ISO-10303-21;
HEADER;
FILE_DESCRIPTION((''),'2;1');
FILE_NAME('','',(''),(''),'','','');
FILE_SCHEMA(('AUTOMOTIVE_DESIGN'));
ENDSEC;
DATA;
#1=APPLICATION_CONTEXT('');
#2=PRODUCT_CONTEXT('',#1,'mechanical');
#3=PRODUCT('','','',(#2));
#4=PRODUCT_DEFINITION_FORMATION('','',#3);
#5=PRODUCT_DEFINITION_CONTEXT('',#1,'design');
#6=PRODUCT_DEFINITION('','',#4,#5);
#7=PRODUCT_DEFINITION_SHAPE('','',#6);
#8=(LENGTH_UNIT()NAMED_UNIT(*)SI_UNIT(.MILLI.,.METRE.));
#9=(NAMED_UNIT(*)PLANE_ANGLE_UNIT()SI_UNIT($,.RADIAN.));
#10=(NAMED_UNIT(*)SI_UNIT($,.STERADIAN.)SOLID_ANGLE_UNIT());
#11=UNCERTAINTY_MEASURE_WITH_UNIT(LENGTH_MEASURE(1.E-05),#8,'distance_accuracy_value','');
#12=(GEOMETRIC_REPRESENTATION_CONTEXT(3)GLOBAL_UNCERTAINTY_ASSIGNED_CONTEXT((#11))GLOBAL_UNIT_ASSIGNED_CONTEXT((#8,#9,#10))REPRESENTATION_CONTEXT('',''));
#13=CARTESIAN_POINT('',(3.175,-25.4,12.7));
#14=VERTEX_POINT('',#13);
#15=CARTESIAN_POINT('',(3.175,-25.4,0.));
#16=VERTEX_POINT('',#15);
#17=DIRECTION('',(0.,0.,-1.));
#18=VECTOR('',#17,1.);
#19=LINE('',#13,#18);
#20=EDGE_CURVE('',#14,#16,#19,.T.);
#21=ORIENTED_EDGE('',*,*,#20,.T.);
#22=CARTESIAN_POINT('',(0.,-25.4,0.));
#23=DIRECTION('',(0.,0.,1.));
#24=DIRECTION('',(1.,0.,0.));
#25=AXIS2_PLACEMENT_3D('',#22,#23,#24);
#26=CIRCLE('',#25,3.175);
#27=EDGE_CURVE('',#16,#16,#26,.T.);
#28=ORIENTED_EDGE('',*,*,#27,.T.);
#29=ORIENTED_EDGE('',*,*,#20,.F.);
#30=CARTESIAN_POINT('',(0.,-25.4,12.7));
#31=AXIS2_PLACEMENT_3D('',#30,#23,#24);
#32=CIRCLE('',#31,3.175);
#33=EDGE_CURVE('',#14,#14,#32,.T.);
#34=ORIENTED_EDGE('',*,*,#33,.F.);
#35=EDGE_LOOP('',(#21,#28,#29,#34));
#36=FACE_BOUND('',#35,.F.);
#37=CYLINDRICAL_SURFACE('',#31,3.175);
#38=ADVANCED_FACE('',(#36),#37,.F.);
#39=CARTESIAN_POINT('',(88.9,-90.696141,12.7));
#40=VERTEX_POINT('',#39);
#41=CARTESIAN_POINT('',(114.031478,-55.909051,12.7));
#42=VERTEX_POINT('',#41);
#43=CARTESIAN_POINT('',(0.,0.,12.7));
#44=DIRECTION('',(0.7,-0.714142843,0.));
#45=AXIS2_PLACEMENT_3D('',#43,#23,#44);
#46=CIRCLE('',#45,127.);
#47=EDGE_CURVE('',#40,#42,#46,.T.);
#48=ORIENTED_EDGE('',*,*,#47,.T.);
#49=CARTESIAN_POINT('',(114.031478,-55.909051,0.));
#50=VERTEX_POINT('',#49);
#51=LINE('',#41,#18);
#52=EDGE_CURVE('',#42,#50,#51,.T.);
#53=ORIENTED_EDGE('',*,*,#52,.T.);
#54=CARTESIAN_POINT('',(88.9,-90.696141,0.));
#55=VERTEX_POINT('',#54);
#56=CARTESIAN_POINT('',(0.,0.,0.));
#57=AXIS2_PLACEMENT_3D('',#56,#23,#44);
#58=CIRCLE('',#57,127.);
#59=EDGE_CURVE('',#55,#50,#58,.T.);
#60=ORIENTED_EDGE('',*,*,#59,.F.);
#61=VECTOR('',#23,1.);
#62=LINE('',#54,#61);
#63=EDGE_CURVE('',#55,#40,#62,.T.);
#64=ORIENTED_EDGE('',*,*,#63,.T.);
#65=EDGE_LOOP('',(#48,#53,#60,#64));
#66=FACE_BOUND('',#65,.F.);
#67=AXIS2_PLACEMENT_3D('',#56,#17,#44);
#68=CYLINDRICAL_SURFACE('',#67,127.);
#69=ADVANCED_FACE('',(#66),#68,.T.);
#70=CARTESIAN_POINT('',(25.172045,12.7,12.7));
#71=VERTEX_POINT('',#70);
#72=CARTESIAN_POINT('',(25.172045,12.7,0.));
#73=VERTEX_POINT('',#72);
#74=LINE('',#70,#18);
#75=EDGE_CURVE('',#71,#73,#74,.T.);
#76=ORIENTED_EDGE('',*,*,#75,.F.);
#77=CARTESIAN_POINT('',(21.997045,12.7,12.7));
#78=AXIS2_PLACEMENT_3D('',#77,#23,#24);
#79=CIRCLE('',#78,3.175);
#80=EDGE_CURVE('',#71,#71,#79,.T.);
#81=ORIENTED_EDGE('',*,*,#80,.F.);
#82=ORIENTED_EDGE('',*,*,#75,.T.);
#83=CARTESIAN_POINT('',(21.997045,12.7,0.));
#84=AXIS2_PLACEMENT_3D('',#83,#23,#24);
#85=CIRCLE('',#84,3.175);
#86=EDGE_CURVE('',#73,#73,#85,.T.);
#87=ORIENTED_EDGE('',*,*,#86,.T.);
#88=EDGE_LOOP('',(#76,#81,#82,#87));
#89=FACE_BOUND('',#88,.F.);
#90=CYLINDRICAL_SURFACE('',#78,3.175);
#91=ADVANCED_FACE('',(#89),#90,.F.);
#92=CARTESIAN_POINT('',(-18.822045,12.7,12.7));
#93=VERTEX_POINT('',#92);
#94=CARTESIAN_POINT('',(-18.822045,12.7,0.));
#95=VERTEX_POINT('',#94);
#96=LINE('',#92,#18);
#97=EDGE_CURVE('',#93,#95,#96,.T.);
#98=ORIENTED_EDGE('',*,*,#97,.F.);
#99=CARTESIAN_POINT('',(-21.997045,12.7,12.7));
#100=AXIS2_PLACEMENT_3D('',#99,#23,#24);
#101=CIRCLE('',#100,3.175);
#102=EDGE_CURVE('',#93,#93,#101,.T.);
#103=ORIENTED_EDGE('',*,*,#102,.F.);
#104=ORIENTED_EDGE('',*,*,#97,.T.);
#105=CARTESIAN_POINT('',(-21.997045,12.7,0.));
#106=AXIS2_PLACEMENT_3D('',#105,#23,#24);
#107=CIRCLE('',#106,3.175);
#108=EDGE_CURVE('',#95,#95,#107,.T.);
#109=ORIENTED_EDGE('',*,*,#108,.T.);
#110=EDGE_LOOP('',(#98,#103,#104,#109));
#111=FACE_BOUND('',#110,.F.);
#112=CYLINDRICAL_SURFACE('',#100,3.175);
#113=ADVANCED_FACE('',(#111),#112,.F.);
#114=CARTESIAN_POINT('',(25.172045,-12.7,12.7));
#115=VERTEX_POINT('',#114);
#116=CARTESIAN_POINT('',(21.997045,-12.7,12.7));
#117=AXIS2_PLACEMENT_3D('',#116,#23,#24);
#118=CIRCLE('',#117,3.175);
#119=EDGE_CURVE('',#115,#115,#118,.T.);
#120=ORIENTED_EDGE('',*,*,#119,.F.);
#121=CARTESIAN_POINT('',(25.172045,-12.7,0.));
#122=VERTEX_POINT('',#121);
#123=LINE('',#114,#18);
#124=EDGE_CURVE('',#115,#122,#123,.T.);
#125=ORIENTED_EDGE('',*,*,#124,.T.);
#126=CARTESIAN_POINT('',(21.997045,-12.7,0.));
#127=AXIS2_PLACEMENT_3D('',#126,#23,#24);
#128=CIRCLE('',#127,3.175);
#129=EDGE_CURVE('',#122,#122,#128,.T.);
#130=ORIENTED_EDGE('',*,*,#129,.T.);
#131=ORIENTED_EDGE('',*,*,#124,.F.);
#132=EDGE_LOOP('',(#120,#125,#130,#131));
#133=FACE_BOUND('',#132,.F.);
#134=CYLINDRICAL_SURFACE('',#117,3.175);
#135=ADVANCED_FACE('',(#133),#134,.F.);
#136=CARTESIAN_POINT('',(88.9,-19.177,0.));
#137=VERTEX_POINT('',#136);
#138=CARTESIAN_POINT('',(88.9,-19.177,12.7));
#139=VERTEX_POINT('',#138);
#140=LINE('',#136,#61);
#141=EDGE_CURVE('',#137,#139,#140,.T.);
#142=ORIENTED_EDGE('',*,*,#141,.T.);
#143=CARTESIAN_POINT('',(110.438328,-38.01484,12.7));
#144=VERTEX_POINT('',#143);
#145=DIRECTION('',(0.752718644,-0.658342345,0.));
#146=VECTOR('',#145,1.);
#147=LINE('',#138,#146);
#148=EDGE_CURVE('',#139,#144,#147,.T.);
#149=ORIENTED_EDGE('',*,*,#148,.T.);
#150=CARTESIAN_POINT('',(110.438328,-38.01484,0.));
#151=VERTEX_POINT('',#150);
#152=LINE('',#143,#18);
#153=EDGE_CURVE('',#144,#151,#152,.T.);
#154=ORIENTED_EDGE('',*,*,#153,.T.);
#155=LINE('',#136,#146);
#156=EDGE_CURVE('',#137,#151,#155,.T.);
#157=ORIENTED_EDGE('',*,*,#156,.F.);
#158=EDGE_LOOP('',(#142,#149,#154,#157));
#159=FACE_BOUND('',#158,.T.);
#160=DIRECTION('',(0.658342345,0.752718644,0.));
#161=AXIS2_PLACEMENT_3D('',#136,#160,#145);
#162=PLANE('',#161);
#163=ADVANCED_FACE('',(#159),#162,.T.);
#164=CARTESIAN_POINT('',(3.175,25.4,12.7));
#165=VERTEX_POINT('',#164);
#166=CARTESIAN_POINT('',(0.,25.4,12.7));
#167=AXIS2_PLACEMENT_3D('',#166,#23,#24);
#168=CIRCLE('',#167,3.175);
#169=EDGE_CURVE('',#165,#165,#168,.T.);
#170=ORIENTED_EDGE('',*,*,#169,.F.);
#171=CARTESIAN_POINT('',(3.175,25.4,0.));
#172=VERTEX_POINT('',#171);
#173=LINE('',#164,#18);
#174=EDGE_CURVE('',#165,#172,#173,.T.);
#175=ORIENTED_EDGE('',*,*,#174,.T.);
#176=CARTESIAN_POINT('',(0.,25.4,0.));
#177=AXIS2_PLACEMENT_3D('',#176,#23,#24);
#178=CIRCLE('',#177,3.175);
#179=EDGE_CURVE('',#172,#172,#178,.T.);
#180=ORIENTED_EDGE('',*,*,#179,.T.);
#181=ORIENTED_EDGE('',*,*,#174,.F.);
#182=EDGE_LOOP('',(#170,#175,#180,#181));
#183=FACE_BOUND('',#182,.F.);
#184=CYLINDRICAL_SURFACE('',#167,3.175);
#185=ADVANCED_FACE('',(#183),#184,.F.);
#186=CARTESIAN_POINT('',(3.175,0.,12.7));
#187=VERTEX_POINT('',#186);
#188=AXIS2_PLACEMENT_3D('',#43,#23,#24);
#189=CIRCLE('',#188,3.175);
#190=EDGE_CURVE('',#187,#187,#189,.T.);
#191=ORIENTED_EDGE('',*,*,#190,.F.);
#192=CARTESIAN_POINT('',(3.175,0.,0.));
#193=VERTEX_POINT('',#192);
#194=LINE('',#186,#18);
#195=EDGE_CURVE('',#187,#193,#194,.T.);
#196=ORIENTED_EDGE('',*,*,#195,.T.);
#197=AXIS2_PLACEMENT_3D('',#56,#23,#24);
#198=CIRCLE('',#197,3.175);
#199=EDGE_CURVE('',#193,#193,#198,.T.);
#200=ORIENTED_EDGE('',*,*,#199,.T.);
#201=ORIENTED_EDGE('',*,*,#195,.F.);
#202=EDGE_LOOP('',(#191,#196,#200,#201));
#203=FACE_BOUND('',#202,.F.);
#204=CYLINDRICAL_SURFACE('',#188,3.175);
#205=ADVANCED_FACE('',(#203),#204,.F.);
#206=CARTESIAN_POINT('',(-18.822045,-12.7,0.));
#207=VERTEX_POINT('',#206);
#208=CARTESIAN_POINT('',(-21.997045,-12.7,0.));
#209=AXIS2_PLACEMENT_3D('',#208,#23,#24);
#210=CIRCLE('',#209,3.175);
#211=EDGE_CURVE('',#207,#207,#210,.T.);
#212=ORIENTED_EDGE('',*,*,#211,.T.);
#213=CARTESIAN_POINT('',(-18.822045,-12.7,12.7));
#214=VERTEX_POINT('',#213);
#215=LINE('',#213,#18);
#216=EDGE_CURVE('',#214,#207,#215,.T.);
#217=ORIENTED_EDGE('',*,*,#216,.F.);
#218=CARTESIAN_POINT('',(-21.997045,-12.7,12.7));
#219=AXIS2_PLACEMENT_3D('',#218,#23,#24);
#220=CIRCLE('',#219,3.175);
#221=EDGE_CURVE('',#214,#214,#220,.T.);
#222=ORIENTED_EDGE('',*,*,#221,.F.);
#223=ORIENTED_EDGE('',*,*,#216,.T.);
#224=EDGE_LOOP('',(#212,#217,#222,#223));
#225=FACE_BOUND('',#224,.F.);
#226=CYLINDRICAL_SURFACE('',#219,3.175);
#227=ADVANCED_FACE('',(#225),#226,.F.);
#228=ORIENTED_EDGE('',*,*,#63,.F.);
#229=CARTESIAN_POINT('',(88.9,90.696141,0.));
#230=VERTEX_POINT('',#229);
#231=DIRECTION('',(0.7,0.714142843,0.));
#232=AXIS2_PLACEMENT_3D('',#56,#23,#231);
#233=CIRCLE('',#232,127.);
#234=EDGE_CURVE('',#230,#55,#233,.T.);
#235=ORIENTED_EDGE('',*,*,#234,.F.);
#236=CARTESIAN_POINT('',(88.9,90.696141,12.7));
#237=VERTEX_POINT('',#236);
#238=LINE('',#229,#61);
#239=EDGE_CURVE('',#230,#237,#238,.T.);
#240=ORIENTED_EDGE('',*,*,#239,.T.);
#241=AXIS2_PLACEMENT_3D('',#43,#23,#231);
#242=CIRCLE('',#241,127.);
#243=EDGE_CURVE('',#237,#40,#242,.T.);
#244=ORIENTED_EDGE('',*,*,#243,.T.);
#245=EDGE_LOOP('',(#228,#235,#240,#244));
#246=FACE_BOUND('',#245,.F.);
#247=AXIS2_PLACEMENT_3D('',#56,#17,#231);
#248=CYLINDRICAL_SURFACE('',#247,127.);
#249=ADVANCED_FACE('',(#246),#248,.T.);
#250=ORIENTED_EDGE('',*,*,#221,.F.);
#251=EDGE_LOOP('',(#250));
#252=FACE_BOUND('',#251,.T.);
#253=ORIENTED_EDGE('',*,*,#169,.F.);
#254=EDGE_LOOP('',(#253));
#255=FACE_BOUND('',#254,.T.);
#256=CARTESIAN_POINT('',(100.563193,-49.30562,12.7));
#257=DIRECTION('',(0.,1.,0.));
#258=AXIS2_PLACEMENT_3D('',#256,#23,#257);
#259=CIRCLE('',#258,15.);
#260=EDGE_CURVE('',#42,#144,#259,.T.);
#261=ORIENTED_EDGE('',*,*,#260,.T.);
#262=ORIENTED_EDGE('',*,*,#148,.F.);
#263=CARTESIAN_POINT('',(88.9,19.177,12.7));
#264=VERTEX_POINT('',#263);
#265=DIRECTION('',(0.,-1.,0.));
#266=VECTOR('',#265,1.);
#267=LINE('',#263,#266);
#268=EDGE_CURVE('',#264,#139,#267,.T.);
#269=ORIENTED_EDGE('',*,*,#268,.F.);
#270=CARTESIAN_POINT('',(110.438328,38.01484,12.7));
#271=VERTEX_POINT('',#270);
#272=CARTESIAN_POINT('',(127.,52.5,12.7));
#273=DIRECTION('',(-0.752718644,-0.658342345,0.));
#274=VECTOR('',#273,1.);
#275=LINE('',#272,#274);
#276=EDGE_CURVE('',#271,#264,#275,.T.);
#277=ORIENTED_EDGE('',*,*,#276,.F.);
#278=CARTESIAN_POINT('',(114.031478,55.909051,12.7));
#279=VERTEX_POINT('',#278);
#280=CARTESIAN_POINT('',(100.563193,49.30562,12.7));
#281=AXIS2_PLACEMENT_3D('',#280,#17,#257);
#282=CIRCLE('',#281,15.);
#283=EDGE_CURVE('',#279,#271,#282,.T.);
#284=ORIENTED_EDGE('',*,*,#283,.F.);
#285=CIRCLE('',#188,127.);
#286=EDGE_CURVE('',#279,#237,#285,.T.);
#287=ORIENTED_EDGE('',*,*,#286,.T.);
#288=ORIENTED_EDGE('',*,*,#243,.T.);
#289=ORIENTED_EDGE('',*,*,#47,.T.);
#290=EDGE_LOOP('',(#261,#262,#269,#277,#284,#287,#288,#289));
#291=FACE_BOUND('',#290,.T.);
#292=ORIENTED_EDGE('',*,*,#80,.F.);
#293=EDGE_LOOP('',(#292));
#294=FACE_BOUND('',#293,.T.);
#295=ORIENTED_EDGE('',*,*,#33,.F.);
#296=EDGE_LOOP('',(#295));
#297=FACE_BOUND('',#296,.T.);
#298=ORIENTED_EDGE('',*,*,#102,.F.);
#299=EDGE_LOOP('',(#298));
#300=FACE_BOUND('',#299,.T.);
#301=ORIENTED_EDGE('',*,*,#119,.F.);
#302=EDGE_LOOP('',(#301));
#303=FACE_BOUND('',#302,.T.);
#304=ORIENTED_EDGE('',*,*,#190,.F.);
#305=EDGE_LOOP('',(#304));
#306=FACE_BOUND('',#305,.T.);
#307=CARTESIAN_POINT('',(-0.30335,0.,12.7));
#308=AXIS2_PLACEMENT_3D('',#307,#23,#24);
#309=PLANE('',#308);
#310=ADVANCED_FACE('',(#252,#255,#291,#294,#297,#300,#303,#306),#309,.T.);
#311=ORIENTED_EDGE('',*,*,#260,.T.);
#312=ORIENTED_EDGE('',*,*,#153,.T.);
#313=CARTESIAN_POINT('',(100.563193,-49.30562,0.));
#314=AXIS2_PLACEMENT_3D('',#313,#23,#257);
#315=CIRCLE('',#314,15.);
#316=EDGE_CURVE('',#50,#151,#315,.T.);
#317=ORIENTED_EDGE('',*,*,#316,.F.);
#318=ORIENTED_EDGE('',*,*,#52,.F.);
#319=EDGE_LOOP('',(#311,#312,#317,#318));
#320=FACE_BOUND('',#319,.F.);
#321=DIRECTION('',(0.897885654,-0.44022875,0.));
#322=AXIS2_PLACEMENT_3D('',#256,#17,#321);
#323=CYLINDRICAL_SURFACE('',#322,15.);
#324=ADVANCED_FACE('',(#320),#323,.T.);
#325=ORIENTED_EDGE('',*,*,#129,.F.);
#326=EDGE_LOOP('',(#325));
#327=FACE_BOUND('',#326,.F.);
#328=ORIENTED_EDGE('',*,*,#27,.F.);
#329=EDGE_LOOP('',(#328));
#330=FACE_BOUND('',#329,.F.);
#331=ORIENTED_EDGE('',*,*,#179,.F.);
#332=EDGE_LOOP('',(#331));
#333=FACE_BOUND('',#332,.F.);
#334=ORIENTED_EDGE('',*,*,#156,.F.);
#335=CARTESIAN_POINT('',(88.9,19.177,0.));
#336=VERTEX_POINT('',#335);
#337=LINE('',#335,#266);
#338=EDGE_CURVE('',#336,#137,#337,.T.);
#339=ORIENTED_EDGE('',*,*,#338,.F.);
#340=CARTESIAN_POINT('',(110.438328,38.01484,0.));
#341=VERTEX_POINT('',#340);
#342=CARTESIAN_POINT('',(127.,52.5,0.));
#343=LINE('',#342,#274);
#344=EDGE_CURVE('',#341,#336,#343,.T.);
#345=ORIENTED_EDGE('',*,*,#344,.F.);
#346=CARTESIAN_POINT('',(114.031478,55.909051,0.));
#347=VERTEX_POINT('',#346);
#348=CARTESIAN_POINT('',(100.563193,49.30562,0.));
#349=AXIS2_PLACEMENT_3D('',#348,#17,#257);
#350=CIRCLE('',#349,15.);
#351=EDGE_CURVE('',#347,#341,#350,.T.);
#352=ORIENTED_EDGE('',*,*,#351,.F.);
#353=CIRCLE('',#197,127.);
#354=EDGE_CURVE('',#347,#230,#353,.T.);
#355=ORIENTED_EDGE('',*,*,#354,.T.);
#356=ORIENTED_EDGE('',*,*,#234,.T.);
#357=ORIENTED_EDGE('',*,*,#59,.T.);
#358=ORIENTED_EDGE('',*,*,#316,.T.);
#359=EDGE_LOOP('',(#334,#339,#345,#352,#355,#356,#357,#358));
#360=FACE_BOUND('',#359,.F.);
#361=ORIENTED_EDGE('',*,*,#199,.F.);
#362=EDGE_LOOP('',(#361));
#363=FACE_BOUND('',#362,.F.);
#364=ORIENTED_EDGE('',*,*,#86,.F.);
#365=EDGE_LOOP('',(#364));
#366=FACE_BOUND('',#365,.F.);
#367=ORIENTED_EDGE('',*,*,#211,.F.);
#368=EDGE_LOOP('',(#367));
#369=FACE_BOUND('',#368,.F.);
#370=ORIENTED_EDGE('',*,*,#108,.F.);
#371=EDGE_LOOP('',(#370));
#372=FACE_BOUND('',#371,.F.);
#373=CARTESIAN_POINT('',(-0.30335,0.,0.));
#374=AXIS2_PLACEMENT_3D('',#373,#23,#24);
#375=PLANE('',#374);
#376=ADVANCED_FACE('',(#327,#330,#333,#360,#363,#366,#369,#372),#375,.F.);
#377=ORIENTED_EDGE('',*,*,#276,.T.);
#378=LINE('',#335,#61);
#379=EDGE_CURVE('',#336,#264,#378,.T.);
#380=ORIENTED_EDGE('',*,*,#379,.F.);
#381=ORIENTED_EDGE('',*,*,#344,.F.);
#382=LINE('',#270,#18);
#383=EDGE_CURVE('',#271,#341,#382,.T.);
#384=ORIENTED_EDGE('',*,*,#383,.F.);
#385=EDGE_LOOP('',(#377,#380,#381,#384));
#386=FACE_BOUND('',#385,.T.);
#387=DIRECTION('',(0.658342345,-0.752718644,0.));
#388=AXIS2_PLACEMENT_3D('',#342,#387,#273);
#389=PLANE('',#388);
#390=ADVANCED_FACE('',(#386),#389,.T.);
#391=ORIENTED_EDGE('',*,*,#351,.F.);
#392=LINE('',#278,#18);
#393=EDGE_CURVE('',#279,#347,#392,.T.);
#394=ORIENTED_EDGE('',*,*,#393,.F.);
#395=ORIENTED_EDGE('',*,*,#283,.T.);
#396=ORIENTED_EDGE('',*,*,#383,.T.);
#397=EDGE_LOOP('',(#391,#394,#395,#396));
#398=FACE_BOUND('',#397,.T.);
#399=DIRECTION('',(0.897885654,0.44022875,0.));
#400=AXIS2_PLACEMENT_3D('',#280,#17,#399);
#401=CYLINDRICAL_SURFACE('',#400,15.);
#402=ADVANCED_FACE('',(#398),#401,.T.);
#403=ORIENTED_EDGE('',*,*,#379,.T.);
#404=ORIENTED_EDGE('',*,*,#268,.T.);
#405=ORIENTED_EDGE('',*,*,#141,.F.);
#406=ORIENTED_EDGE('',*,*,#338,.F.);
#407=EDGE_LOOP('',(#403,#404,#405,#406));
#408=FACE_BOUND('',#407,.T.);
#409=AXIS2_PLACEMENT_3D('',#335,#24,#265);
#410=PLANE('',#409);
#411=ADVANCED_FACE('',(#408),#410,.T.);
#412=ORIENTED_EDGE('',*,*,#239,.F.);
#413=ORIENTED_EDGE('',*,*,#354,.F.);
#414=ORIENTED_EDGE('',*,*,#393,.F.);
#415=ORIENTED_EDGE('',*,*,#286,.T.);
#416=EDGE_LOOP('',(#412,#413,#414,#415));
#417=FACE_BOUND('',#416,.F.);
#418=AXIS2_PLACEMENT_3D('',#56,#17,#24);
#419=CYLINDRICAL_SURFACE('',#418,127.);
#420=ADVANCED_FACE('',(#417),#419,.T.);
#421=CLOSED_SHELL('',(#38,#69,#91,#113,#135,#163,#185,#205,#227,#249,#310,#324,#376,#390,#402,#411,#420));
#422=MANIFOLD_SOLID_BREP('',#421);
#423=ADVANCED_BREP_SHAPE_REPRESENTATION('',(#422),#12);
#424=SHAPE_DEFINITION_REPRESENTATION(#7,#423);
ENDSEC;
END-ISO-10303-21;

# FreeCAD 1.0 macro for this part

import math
import FreeCAD as App
import Part
import Sketcher
from FreeCAD import Vector
Q = App.Units.Quantity


def edges_at(feature, points):
    """Names of the edges that pass closest to the given points."""
    edges = feature.Shape.Edges
    near = lambda p: min(range(len(edges)), key=lambda i: edges[i].distToShape(Part.Vertex(*p))[0])
    return sorted({f"Edge{near(p) + 1}" for p in points})


def add_polygon(sketch, points):
    """Adds a closed chain of lines whose ends are joined by coincident constraints."""
    first, n = sketch.GeometryCount, len(points)
    for a, b in zip(points, points[1:] + points[:1]):
        sketch.addGeometry(Part.LineSegment(App.Vector(*a, 0), App.Vector(*b, 0)), False)
    for i in range(n):
        sketch.addConstraint(Sketcher.Constraint("Coincident", first + i, 2, first + (i + 1) % n, 1))

doc = App.newDocument("Part")
body = doc.addObject("PartDesign::Body", "Body")

# Sketch on XY plane
sketch1 = doc.addObject("Sketcher::SketchObject", "Sketch")
body.addObject(sketch1)
sketch1.AttachmentSupport = (doc.XY_Plane, [""])
sketch1.MapMode = "FlatFace"
sketch1.addGeometry([
    Part.ArcOfCircle(Part.Circle(Vector(0, 0, 0), Vector(0, 0, 1), 127), math.radians(45.572996), math.radians(314.427004)),
    Part.ArcOfCircle(Part.Circle(Vector(0, 0, 0), Vector(0, 0, 1), 127), math.radians(-45.572996), math.radians(0)),
    Part.ArcOfCircle(Part.Circle(Vector(0, 0, 0), Vector(0, 0, 1), 127), math.radians(0), math.radians(45.572996)),
], False)
sketch1.addConstraint([
    Sketcher.Constraint("Tangent", 0, 2, 1, 1),
    Sketcher.Constraint("Tangent", 1, 2, 2, 1),
    Sketcher.Constraint("Tangent", 2, 2, 0, 1),
    Sketcher.Constraint("Coincident", 0, 3, -1, 1),
    Sketcher.Constraint("PointOnObject", 1, 2, -1),
    Sketcher.Constraint("Vertical", 0, 2, 2, 2),
    Sketcher.Constraint("Radius", 0, Q("5 in")),
    Sketcher.Constraint("DistanceX", -1, 1, 0, 2, Q("3.5 in")),
])
pad1 = doc.addObject("PartDesign::Pad", "Pad")
body.addObject(pad1)
pad1.Profile = sketch1
pad1.Length = Q("0.5 in")

# Sketch on XY plane
sketch2 = doc.addObject("Sketcher::SketchObject", "Sketch001")
body.addObject(sketch2)
sketch2.AttachmentSupport = (doc.XY_Plane, [""])
sketch2.MapMode = "FlatFace"
add_polygon(sketch2, [(127, 52.5), (88.9, 19.177), (88.9, -19.177), (127, -52.5)])  # lines 0-3
sketch2.addConstraint([
    Sketcher.Constraint("Vertical", 1),
    Sketcher.Constraint("Vertical", 3),
    Sketcher.Constraint("Equal", 0, 2),
    Sketcher.Constraint("DistanceX", -1, 1, 2, 2, Q("5 in")),
    Sketcher.Constraint("DistanceY", 1, 2, 1, 1, Q("1.51 in")),
    Sketcher.Constraint("DistanceX", -1, 1, 0, 2, Q("3.5 in")),
    Sketcher.Constraint("DistanceY", -1, 1, 0, 2, Q("0.755 in")),
    Sketcher.Constraint("DistanceY", 3, 1, 3, 2, 105.0),
])
pocket1 = doc.addObject("PartDesign::Pocket", "Pocket")
body.addObject(pocket1)
pocket1.Profile = sketch2
pocket1.Type = "ThroughAll"
pocket1.Reversed = True
doc.recompute()

fillet = doc.addObject("PartDesign::Fillet", "Fillet")
body.addObject(fillet)
fillet.Base = (pocket1, edges_at(pocket1, [(118.677, -45.22, 6.35), (118.677, 45.22, 6.35)]))
fillet.Radius = 15

# Sketch on XY plane
sketch3 = doc.addObject("Sketcher::SketchObject", "Sketch002")
body.addObject(sketch3)
sketch3.AttachmentSupport = (doc.XY_Plane, [""])
sketch3.MapMode = "FlatFace"
sketch3.AttachmentOffset = App.Placement(Vector(0, 0, 0.5 * 25.4), App.Rotation())
sketch3.addGeometry([
    Part.Circle(Vector(0, 0, 0), Vector(0, 0, 1), 3.175),  # 0
    Part.Circle(Vector(0, 25.4, 0), Vector(0, 0, 1), 3.175),  # 1
    Part.Circle(Vector(-21.997045, 12.7, 0), Vector(0, 0, 1), 3.175),  # 2
    Part.Circle(Vector(-21.997045, -12.7, 0), Vector(0, 0, 1), 3.175),  # 3
    Part.Circle(Vector(0, -25.4, 0), Vector(0, 0, 1), 3.175),  # 4
    Part.Circle(Vector(21.997045, -12.7, 0), Vector(0, 0, 1), 3.175),  # 5
    Part.Circle(Vector(21.997045, 12.7, 0), Vector(0, 0, 1), 3.175),  # 6
], False)
sketch3.addConstraint([
    Sketcher.Constraint("Coincident", 0, 3, -1, 1),
    Sketcher.Constraint("Equal", 0, 1),
    Sketcher.Constraint("Equal", 1, 2),
    Sketcher.Constraint("Equal", 2, 3),
    Sketcher.Constraint("Equal", 3, 4),
    Sketcher.Constraint("Equal", 4, 5),
    Sketcher.Constraint("Equal", 5, 6),
    Sketcher.Constraint("Symmetric", 1, 3, 4, 3, -1, 1),
    Sketcher.Constraint("Symmetric", 2, 3, 5, 3, -1, 1),
    Sketcher.Constraint("Symmetric", 3, 3, 6, 3, -1, 1),
    Sketcher.Constraint("Symmetric", 3, 3, 5, 3, -2),
    Sketcher.Constraint("PointOnObject", 1, 3, -2),
    Sketcher.Constraint("Diameter", 0, Q("0.25 in")),
    Sketcher.Constraint("DistanceY", -1, 1, 1, 3, Q("1 in")),
    Sketcher.Constraint("DistanceY", 3, 3, 2, 3, Q("1 in")),
    Sketcher.Constraint("DistanceX", 3, 3, 5, 3, 43.994091),
])
pocket2 = doc.addObject("PartDesign::Pocket", "Pocket001")
body.addObject(pocket2)
pocket2.Profile = sketch3
pocket2.Type = "ThroughAll"

doc.recompute()
